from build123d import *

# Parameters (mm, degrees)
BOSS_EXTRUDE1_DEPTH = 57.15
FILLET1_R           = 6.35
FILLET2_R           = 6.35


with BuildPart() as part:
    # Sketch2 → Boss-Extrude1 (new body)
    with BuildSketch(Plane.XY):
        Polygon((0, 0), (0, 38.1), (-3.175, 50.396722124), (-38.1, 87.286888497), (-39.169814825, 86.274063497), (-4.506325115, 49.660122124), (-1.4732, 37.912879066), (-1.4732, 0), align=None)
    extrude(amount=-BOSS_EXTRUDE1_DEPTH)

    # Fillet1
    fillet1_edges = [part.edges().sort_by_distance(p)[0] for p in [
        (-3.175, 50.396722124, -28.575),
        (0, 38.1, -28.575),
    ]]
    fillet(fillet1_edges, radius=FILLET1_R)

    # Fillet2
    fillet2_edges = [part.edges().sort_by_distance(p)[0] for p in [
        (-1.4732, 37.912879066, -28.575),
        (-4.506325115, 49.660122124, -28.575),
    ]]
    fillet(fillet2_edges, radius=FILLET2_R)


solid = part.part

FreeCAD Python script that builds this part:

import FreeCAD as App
import Part
import Sketcher
from FreeCAD import Vector
Q = App.Units.Quantity


def edges_at(feature, points):
    """Names of the edges that pass closest to the given points."""
    edges = feature.Shape.Edges
    near = lambda p: min(range(len(edges)), key=lambda i: edges[i].distToShape(Part.Vertex(*p))[0])
    return sorted({f"Edge{near(p) + 1}" for p in points})

doc = App.newDocument("Part")
params = doc.addObject("Spreadsheet::Sheet", "Params")
for row, (alias, value) in enumerate([
    ("sketch1_length", "2 in"),
    ("sketch1_height", "1.5 in"),
    ("sketch1_length2", "0.5 in"),
    ("sketch1_width", "0.058 in"),
    ("sketch1_length3", "0.058 in"),
    ("pad1_length", "2.25 in"),
    ("fillet_radius", "0.25 in"),
    ("fillet2_radius", "0.25 in"),
], start=1):
    params.set(f"A{row}", alias)
    params.set(f"B{row}", "=" + value)
    params.setAlias(f"B{row}", alias)

body = doc.addObject("PartDesign::Body", "Body")

sketch1 = body.newObject("Sketcher::SketchObject", "Sketch")
sketch1.AttachmentSupport = (doc.getObject("XY_Plane"), [""])
sketch1.MapMode = "FlatFace"
sketch1.addGeometry([
    Part.LineSegment(Vector(0, 0, 0), Vector(0, 38.1, 0)),
    Part.LineSegment(Vector(0, 38.1, 0), Vector(-3.175, 50.396722, 0)),
    Part.LineSegment(Vector(-3.175, 50.396722, 0), Vector(-38.1, 87.286888, 0)),
    Part.LineSegment(Vector(-38.1, 87.286888, 0), Vector(-39.169815, 86.274063, 0)),
    Part.LineSegment(Vector(-39.169815, 86.274063, 0), Vector(-4.506325, 49.660122, 0)),
    Part.LineSegment(Vector(-4.506325, 49.660122, 0), Vector(-1.4732, 37.912879, 0)),
    Part.LineSegment(Vector(-1.4732, 37.912879, 0), Vector(-1.4732, 0, 0)),
    Part.LineSegment(Vector(-1.4732, 0, 0), Vector(0, 0, 0)),
], False)
sketch1.addConstraint([
    Sketcher.Constraint("Coincident", 0, 2, 1, 1),
    Sketcher.Constraint("Coincident", 1, 2, 2, 1),
    Sketcher.Constraint("Coincident", 2, 2, 3, 1),
    Sketcher.Constraint("Coincident", 3, 2, 4, 1),
    Sketcher.Constraint("Coincident", 4, 2, 5, 1),
    Sketcher.Constraint("Coincident", 5, 2, 6, 1),
    Sketcher.Constraint("Coincident", 6, 2, 7, 1),
    Sketcher.Constraint("Coincident", 7, 2, 0, 1),
    Sketcher.Constraint("Vertical", 0),
    Sketcher.Constraint("Vertical", 6),
    Sketcher.Constraint("Horizontal", 7),
    Sketcher.Constraint("Coincident", 7, 2, -1, 1),
    Sketcher.Constraint("Perpendicular", 2, 3),
    Sketcher.Constraint("Perpendicular", 3, 4),
    Sketcher.Constraint("Parallel", 1, 5),
    Sketcher.Constraint("Distance", 2, Q("2 in")),
    Sketcher.Constraint("DistanceY", 0, 1, 0, 2, Q("1.5 in")),
    Sketcher.Constraint("Distance", 1, Q("0.5 in")),
    Sketcher.Constraint("DistanceX", 2, 2, -1, 1, Q("1.5 in")),
    Sketcher.Constraint("DistanceX", 7, 1, 7, 2, Q("0.058 in")),
    Sketcher.Constraint("Distance", 3, Q("0.058 in")),
    Sketcher.Constraint("DistanceX", 1, 2, -1, 1, Q("0.125 in")),
    Sketcher.Constraint("DistanceY", 4, 2, 1, 2, Q("0.029 in")),
])
sketch1.setExpression("Constraints[15]", "Params.sketch1_length")
sketch1.setExpression("Constraints[16]", "Params.sketch1_height")
sketch1.setExpression("Constraints[17]", "Params.sketch1_length2")
sketch1.setExpression("Constraints[19]", "Params.sketch1_width")
sketch1.setExpression("Constraints[20]", "Params.sketch1_length3")
pad1 = body.newObject("PartDesign::Pad", "Pad")
pad1.Profile = sketch1
pad1.setExpression("Length", "Params.pad1_length")
pad1.Reversed = True
doc.recompute()

fillet = body.newObject("PartDesign::Fillet", "Fillet")
fillet.Base = (pad1, edges_at(pad1, [(-3.175, 50.397, -28.575), (0, 38.1, -28.575)]))
fillet.setExpression("Radius", "Params.fillet_radius")
doc.recompute()

fillet2 = body.newObject("PartDesign::Fillet", "Fillet001")
fillet2.Base = (fillet, edges_at(fillet, [(-1.473, 37.913, -28.575), (-4.506, 49.66, -28.575)]))
fillet2.setExpression("Radius", "Params.fillet2_radius")

doc.recompute()
